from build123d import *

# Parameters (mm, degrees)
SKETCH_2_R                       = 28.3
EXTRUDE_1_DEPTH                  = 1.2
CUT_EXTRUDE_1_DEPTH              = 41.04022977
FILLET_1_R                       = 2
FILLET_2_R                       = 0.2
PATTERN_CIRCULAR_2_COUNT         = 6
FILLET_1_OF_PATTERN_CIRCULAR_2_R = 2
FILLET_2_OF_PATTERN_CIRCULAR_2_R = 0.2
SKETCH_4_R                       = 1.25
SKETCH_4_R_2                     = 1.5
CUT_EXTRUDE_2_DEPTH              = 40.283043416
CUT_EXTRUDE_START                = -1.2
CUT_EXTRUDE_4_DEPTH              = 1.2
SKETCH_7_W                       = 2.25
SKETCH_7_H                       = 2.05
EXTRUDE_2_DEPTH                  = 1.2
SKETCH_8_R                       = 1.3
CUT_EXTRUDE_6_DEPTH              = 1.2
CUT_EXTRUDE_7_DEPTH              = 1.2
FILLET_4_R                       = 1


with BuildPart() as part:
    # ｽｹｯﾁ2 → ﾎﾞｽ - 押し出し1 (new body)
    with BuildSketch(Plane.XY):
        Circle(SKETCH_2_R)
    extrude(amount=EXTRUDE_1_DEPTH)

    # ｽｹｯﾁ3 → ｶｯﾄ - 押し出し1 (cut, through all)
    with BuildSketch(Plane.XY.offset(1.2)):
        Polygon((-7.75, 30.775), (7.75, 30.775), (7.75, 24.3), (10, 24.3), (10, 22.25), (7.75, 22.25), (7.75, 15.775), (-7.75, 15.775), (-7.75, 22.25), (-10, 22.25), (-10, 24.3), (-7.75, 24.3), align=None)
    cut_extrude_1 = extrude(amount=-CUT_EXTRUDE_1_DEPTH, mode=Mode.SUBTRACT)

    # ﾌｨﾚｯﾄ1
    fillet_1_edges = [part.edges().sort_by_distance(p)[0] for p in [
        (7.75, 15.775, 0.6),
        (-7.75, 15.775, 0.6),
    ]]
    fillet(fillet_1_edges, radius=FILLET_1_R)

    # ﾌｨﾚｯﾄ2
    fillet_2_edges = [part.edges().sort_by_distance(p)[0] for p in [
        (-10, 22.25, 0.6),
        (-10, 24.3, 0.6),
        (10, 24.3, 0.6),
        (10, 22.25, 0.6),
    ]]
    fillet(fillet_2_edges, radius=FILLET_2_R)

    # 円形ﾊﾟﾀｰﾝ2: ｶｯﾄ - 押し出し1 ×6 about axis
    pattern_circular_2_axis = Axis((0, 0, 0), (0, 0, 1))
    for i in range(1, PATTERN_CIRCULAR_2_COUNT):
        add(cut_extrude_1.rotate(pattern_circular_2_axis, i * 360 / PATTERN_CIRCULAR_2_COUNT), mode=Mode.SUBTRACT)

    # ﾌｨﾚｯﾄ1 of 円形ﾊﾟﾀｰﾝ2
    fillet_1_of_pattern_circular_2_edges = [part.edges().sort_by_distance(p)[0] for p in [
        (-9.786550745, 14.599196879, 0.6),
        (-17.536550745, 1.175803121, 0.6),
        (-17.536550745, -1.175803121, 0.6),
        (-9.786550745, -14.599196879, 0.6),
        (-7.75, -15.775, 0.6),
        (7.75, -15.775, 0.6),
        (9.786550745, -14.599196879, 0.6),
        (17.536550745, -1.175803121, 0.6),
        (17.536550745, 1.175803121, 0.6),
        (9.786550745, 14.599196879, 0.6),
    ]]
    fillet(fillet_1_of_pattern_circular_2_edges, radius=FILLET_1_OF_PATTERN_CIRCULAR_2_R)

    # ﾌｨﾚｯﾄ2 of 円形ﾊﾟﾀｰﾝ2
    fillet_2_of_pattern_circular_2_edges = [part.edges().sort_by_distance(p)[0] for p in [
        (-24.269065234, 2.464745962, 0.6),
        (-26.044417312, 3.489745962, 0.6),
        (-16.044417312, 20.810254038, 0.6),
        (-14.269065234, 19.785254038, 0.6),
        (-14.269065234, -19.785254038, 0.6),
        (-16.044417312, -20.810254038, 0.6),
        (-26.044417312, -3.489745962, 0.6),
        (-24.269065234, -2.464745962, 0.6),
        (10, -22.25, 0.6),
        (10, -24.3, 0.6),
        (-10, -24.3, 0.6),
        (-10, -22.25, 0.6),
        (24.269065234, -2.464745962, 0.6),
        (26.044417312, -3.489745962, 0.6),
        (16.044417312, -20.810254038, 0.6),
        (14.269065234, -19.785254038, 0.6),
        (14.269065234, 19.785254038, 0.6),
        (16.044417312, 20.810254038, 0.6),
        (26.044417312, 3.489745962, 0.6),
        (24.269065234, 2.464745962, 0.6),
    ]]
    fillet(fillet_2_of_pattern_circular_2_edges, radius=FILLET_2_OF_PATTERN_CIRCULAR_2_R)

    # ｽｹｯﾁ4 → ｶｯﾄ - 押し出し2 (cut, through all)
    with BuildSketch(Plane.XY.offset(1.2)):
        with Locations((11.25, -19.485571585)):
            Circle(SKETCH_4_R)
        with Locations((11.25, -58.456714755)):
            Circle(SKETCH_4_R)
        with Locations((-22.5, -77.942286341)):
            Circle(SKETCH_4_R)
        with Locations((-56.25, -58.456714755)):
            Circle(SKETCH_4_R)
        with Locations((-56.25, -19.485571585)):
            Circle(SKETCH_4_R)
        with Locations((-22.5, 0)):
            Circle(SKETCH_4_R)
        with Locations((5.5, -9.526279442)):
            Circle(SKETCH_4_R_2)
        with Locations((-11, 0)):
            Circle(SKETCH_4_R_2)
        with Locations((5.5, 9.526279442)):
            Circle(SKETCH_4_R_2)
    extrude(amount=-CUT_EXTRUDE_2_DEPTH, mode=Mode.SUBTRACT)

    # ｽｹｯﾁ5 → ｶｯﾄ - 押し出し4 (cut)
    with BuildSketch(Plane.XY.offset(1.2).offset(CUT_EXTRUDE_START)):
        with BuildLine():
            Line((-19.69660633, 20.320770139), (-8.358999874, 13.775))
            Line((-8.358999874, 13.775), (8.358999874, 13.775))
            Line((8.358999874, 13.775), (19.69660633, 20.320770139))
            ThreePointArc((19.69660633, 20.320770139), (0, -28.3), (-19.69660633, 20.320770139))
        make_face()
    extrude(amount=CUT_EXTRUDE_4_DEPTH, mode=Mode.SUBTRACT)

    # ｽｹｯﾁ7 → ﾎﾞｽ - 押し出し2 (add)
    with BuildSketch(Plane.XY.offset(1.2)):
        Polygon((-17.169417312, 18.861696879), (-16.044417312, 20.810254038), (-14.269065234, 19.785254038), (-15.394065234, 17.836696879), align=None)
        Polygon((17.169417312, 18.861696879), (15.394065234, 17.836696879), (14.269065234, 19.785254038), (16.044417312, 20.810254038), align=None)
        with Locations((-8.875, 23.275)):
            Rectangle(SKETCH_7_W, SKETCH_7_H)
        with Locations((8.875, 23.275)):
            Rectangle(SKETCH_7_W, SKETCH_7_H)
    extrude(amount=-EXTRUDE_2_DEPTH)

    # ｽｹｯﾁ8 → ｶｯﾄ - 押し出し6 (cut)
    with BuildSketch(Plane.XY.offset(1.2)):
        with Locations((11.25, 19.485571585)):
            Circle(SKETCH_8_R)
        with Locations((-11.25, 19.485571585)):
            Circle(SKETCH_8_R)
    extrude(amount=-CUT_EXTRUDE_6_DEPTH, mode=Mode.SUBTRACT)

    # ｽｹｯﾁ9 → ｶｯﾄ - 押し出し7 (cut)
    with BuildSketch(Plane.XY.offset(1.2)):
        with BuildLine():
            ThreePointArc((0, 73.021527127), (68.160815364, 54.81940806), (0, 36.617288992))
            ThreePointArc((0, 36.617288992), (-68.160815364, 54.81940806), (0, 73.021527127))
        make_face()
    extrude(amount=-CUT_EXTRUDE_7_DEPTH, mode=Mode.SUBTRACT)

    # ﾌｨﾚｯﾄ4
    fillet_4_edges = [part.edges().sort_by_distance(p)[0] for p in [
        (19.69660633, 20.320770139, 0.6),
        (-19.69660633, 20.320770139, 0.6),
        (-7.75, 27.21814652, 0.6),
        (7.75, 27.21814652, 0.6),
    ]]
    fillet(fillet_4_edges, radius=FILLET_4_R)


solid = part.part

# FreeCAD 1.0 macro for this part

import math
import FreeCAD as App
import Part
import Sketcher
Q = App.Units.Quantity


def edges_at(feature, points):
    """Names of the edges that pass closest to the given points."""
    edges = feature.Shape.Edges
    near = lambda p: min(range(len(edges)), key=lambda i: edges[i].distToShape(Part.Vertex(*p))[0])
    return sorted({f"Edge{near(p) + 1}" for p in points})


def add_polygon(sketch, points):
    """Adds a closed chain of lines whose ends are joined by coincident constraints."""
    first, n = sketch.GeometryCount, len(points)
    for a, b in zip(points, points[1:] + points[:1]):
        sketch.addGeometry(Part.LineSegment(App.Vector(*a, 0), App.Vector(*b, 0)), False)
    for i in range(n):
        sketch.addConstraint(Sketcher.Constraint("Coincident", first + i, 2, first + (i + 1) % n, 1))

doc = App.newDocument("Part")
body = doc.addObject("PartDesign::Body", "Body")

# Sketch on XY plane
sketch1 = body.newObject("Sketcher::SketchObject", "Sketch")
sketch1.AttachmentSupport = (doc.getObject("XY_Plane"), [""])
sketch1.MapMode = "FlatFace"
sketch1.addGeometry(Part.Circle(App.Vector(0, 0, 0), App.Vector(0, 0, 1), 28), False)
sketch1.addConstraint([
    Sketcher.Constraint("Coincident", 0, 3, -1, 1),
    Sketcher.Constraint("Diameter", 0, Q("56.6 mm")),
])
pad1 = body.newObject("PartDesign::Pad", "Pad")
pad1.Profile = sketch1
pad1.Length = 1.2

# Sketch on XY plane
sketch2 = body.newObject("Sketcher::SketchObject", "Sketch001")
sketch2.AttachmentSupport = (doc.getObject("XY_Plane"), [""])
sketch2.MapMode = "FlatFace"
sketch2.AttachmentOffset = App.Placement(App.Vector(0, 0, 1.2), App.Rotation())
add_polygon(sketch2, [(7.8, 30.8), (-7.8, 30.8), (-7.8, 24.3), (-10, 24.3), (-10, 22.2), (-7.8, 22.2), (-7.8, 15.8), (7.8, 15.8), (7.8, 22.2), (10, 22.2), (10, 24.3), (7.8, 24.3)])  # lines 0-11
sketch2.addConstraint([
    Sketcher.Constraint("Horizontal", 0),
    Sketcher.Constraint("Vertical", 1),
    Sketcher.Constraint("Horizontal", 2),
    Sketcher.Constraint("Vertical", 3),
    Sketcher.Constraint("Horizontal", 4),
    Sketcher.Constraint("Vertical", 5),
    Sketcher.Constraint("Horizontal", 6),
    Sketcher.Constraint("Vertical", 7),
    Sketcher.Constraint("Horizontal", 8),
    Sketcher.Constraint("Vertical", 9),
    Sketcher.Constraint("Horizontal", 10),
    Sketcher.Constraint("Vertical", 11),
    Sketcher.Constraint("Symmetric", 4, 2, 7, 2, -2),
    Sketcher.Constraint("Symmetric", 2, 2, 9, 2, -2),
    Sketcher.Constraint("Vertical", 1, 2, 4, 2),
    Sketcher.Constraint("Vertical", 7, 2, 10, 2),
    Sketcher.Constraint("Equal", 1, 5),
    Sketcher.Constraint("DistanceX", 0, 2, 0, 1, Q("15.5 mm")),
    Sketcher.Constraint("DistanceX", 2, 2, -1, 1, Q("10 mm")),
    Sketcher.Constraint("DistanceY", 5, 2, 0, 2, Q("15 mm")),
    Sketcher.Constraint("DistanceY", 3, 2, 3, 1, Q("2.05 mm")),
    Sketcher.Constraint("DistanceY", -1, 1, 1, 2, Q("24.3 mm")),
])
pocket1 = body.newObject("PartDesign::Pocket", "Pocket")
pocket1.Profile = sketch2
pocket1.Type = "ThroughAll"
doc.recompute()

fillet = body.newObject("PartDesign::Fillet", "Fillet")
fillet.Base = (pocket1, edges_at(pocket1, [(7.75, 15.775, 0.6), (-7.75, 15.775, 0.6)]))
fillet.Radius = 2
doc.recompute()

fillet2 = body.newObject("PartDesign::Fillet", "Fillet001")
fillet2.Base = (fillet, edges_at(fillet, [
    (-10, 22.25, 0.6),
    (-10, 24.3, 0.6),
    (10, 24.3, 0.6),
    (10, 22.25, 0.6),
]))
fillet2.Radius = 0.2
doc.recompute()

polarpattern = body.newObject("PartDesign::PolarPattern", "PolarPattern")
polarpattern.Originals = [pocket1]
polarpattern.Axis = (doc.getObject("Z_Axis"), [""])
polarpattern.Angle = 360
polarpattern.Occurrences = 6
body.Tip = polarpattern
doc.recompute()

fillet3 = body.newObject("PartDesign::Fillet", "Fillet002")
fillet3.Base = (polarpattern, edges_at(polarpattern, [
    (-9.787, 14.599, 0.6),
    (-17.537, 1.176, 0.6),
    (-17.537, -1.176, 0.6),
    (-9.787, -14.599, 0.6),
    (-7.75, -15.775, 0.6),
    (7.75, -15.775, 0.6),
    (9.787, -14.599, 0.6),
    (17.537, -1.176, 0.6),
    (17.537, 1.176, 0.6),
    (9.787, 14.599, 0.6),
]))
fillet3.Radius = 2
doc.recompute()

fillet4 = body.newObject("PartDesign::Fillet", "Fillet003")
fillet4.Base = (fillet3, edges_at(fillet3, [
    (-24.269, 2.465, 0.6),
    (-26.044, 3.49, 0.6),
    (-16.044, 20.81, 0.6),
    (-14.269, 19.785, 0.6),
    (-14.269, -19.785, 0.6),
    (-16.044, -20.81, 0.6),
    (-26.044, -3.49, 0.6),
    (-24.269, -2.465, 0.6),
    (10, -22.25, 0.6),
    (10, -24.3, 0.6),
    (-10, -24.3, 0.6),
    (-10, -22.25, 0.6),
    (24.269, -2.465, 0.6),
    (26.044, -3.49, 0.6),
    (16.044, -20.81, 0.6),
    (14.269, -19.785, 0.6),
    (14.269, 19.785, 0.6),
    (16.044, 20.81, 0.6),
    (26.044, 3.49, 0.6),
    (24.269, 2.465, 0.6),
]))
fillet4.Radius = 0.2

# Sketch on XY plane
sketch3 = body.newObject("Sketcher::SketchObject", "Sketch002")
sketch3.AttachmentSupport = (doc.getObject("XY_Plane"), [""])
sketch3.MapMode = "FlatFace"
sketch3.AttachmentOffset = App.Placement(App.Vector(0, 0, 1.2), App.Rotation())
sketch3.addGeometry([
    Part.Circle(App.Vector(11.2, -19.5, 0), App.Vector(0, 0, 1), 1.2),  # 0
    Part.Circle(App.Vector(11.2, -58.5, 0), App.Vector(0, 0, 1), 1.2),  # 1
    Part.Circle(App.Vector(-22.5, -77.9, 0), App.Vector(0, 0, 1), 1.2),  # 2
    Part.Circle(App.Vector(-56.2, -58.5, 0), App.Vector(0, 0, 1), 1.2),  # 3
    Part.Circle(App.Vector(-56.2, -19.5, 0), App.Vector(0, 0, 1), 1.2),  # 4
    Part.Circle(App.Vector(-22.5, 0, 0), App.Vector(0, 0, 1), 1.2),  # 5
    Part.Circle(App.Vector(5.5, -9.5, 0), App.Vector(0, 0, 1), 1.5),  # 6
    Part.Circle(App.Vector(-11, 0, 0), App.Vector(0, 0, 1), 1.5),  # 7
    Part.Circle(App.Vector(5.5, 9.5, 0), App.Vector(0, 0, 1), 1.5),  # 8
], False)
sketch3.addConstraint([
    Sketcher.Constraint("Equal", 0, 1),
    Sketcher.Constraint("Equal", 1, 2),
    Sketcher.Constraint("Equal", 2, 3),
    Sketcher.Constraint("Equal", 3, 4),
    Sketcher.Constraint("Equal", 4, 5),
    Sketcher.Constraint("Equal", 6, 7),
    Sketcher.Constraint("Equal", 7, 8),
    Sketcher.Constraint("Symmetric", 6, 3, 8, 3, -1),
    Sketcher.Constraint("PointOnObject", 5, 3, -1),
    Sketcher.Constraint("PointOnObject", 7, 3, -1),
    Sketcher.Constraint("Horizontal", 1, 3, 3, 3),
    Sketcher.Constraint("Horizontal", 0, 3, 4, 3),
    Sketcher.Constraint("Vertical", 0, 3, 1, 3),
    Sketcher.Constraint("Vertical", 3, 3, 4, 3),
    Sketcher.Constraint("Vertical", 2, 3, 5, 3),
    Sketcher.Constraint("Diameter", 6, Q("3 mm")),
    Sketcher.Constraint("Diameter", 0, Q("2.5 mm")),
    Sketcher.Constraint("DistanceX", 7, 3, -1, 1, Q("11 mm")),
    Sketcher.Constraint("DistanceX", 5, 3, 6, 3, Q("28 mm")),
    Sketcher.Constraint("DistanceX", 2, 3, -1, 1, Q("22.5 mm")),
    Sketcher.Constraint("DistanceX", 3, 3, 1, 3, Q("67.5 mm")),
    Sketcher.Constraint("DistanceX", -1, 1, 0, 3, Q("11.25 mm")),
    Sketcher.Constraint("DistanceY", 0, 3, -1, 1, Q("19.485572 mm")),
    Sketcher.Constraint("DistanceY", 6, 3, -1, 1, Q("9.526279 mm")),
    Sketcher.Constraint("DistanceY", 2, 3, 1, 3, Q("19.485572 mm")),
    Sketcher.Constraint("DistanceY", 1, 3, -1, 1, Q("58.456715 mm")),
])
pocket2 = body.newObject("PartDesign::Pocket", "Pocket001")
pocket2.Profile = sketch3
pocket2.Type = "ThroughAll"

# Sketch on XY plane
sketch4 = body.newObject("Sketcher::SketchObject", "Sketch003")
sketch4.AttachmentSupport = (doc.getObject("XY_Plane"), [""])
sketch4.MapMode = "FlatFace"
sketch4.addGeometry([
    Part.LineSegment(App.Vector(-8, 14, 0), App.Vector(-20, 20, 0)),
    Part.ArcOfCircle(Part.Circle(App.Vector(0, 0, 0), App.Vector(0, 0, 1), 28), math.radians(134), math.radians(406)),
    Part.LineSegment(App.Vector(20, 20, 0), App.Vector(8, 14, 0)),
    Part.LineSegment(App.Vector(8, 14, 0), App.Vector(-8, 14, 0)),
], False)
sketch4.addConstraint([
    Sketcher.Constraint("Coincident", 0, 2, 1, 1),
    Sketcher.Constraint("Coincident", 1, 2, 2, 1),
    Sketcher.Constraint("Coincident", 2, 2, 3, 1),
    Sketcher.Constraint("Coincident", 3, 2, 0, 1),
    Sketcher.Constraint("Horizontal", 3),
    Sketcher.Constraint("Coincident", 1, 3, -1, 1),
    Sketcher.Constraint("Horizontal", 0, 2, 1, 2),
    Sketcher.Constraint("Equal", 0, 2),
    Sketcher.Constraint("Radius", 1, Q("28.3 mm")),
    Sketcher.Constraint("Angle", 0, Q("150 deg")),
    Sketcher.Constraint("DistanceX", 3, 2, 3, 1, Q("16.718 mm")),
    Sketcher.Constraint("DistanceY", -1, 1, 2, 2, Q("13.775 mm")),
])
pocket3 = body.newObject("PartDesign::Pocket", "Pocket002")
pocket3.Profile = sketch4
pocket3.Length = 1.2
pocket3.Reversed = True

# Sketch on XY plane
sketch5 = body.newObject("Sketcher::SketchObject", "Sketch004")
sketch5.AttachmentSupport = (doc.getObject("XY_Plane"), [""])
sketch5.MapMode = "FlatFace"
sketch5.AttachmentOffset = App.Placement(App.Vector(0, 0, 1.2), App.Rotation())
add_polygon(sketch5, [(-16, 20.8), (-17.2, 18.9), (-15.4, 17.8), (-14.3, 19.8)])  # lines 0-3
add_polygon(sketch5, [(15.4, 17.8), (17.2, 18.9), (16, 20.8), (14.3, 19.8)])  # lines 4-7
add_polygon(sketch5, [(-10, 24.3), (-10, 22.2), (-7.8, 22.2), (-7.8, 24.3)])  # lines 8-11
add_polygon(sketch5, [(7.8, 24.3), (7.8, 22.2), (10, 22.2), (10, 24.3)])  # lines 12-15
sketch5.addConstraint([
    Sketcher.Constraint("Vertical", 8),
    Sketcher.Constraint("Horizontal", 9),
    Sketcher.Constraint("Vertical", 10),
    Sketcher.Constraint("Horizontal", 11),
    Sketcher.Constraint("Vertical", 12),
    Sketcher.Constraint("Horizontal", 13),
    Sketcher.Constraint("Vertical", 14),
    Sketcher.Constraint("Horizontal", 15),
    Sketcher.Constraint("Symmetric", 0, 2, 4, 2, -2),
    Sketcher.Constraint("Symmetric", 3, 2, 5, 2, -2),
    Sketcher.Constraint("Symmetric", 2, 2, 6, 2, -2),
    Sketcher.Constraint("Symmetric", 1, 2, 7, 2, -2),
    Sketcher.Constraint("Symmetric", 9, 2, 12, 2, -2),
    Sketcher.Constraint("Symmetric", 11, 2, 14, 2, -2),
    Sketcher.Constraint("Perpendicular", 0, 1),
    Sketcher.Constraint("Perpendicular", 1, 2),
    Sketcher.Constraint("Perpendicular", 2, 3),
    Sketcher.Constraint("Angle", 0, Q("-120 deg")),
    Sketcher.Constraint("DistanceX", 8, 2, -1, 1, Q("10 mm")),
    Sketcher.Constraint("DistanceX", 9, 1, 9, 2, Q("2.25 mm")),
    Sketcher.Constraint("DistanceY", 8, 2, 8, 1, Q("2.05 mm")),
    Sketcher.Constraint("DistanceY", -1, 1, 10, 2, Q("24.3 mm")),
    Sketcher.Constraint("Distance", 0, Q("2.25 mm")),
    Sketcher.Constraint("Distance", 1, Q("2.05 mm")),
    Sketcher.Constraint("DistanceX", 2, 2, 6, 2, Q("28.53813 mm")),
    Sketcher.Constraint("DistanceY", -1, 1, 0, 2, Q("18.861697 mm")),
])
pad2 = body.newObject("PartDesign::Pad", "Pad001")
pad2.Profile = sketch5
pad2.Length = 1.2
pad2.Reversed = True

# Sketch on XY plane
sketch6 = body.newObject("Sketcher::SketchObject", "Sketch005")
sketch6.AttachmentSupport = (doc.getObject("XY_Plane"), [""])
sketch6.MapMode = "FlatFace"
sketch6.AttachmentOffset = App.Placement(App.Vector(0, 0, 1.2), App.Rotation())
sketch6.addGeometry([
    Part.Circle(App.Vector(11.2, 19.5, 0), App.Vector(0, 0, 1), 1.3),
    Part.Circle(App.Vector(-11.2, 19.5, 0), App.Vector(0, 0, 1), 1.3),
], False)
sketch6.addConstraint([
    Sketcher.Constraint("Equal", 0, 1),
    Sketcher.Constraint("Symmetric", 0, 3, 1, 3, -2),
    Sketcher.Constraint("Diameter", 0, Q("2.6 mm")),
    Sketcher.Constraint("DistanceX", 1, 3, 0, 3, Q("22.5 mm")),
    Sketcher.Constraint("DistanceY", -1, 1, 0, 3, Q("19.485572 mm")),
])
pocket4 = body.newObject("PartDesign::Pocket", "Pocket003")
pocket4.Profile = sketch6
pocket4.Length = 1.2

# Sketch on XY plane
sketch7 = body.newObject("Sketcher::SketchObject", "Sketch006")
sketch7.AttachmentSupport = (doc.getObject("XY_Plane"), [""])
sketch7.MapMode = "FlatFace"
sketch7.AttachmentOffset = App.Placement(App.Vector(0, 0, 1.2), App.Rotation())
sketch7.addGeometry([
    Part.ArcOfCircle(Part.Circle(App.Vector(32, 55, 0), App.Vector(0, 0, 1), 37), math.radians(-150), math.radians(150)),
    Part.ArcOfCircle(Part.Circle(App.Vector(-32, 55, 0), App.Vector(0, 0, 1), 37), math.radians(30), math.radians(330)),
], False)
sketch7.addConstraint([
    Sketcher.Constraint("Coincident", 0, 1, 1, 2),
    Sketcher.Constraint("Coincident", 1, 1, 0, 2),
    Sketcher.Constraint("Equal", 0, 1),
    Sketcher.Constraint("Symmetric", 0, 3, 1, 3, -2),
    Sketcher.Constraint("DistanceX", 1, 3, 0, 3, Q("63.3 mm")),
    Sketcher.Constraint("Radius", 0, Q("36.510815 mm")),
    Sketcher.Constraint("DistanceY", -1, 1, 0, 3, Q("54.819408 mm")),
])
pocket5 = body.newObject("PartDesign::Pocket", "Pocket004")
pocket5.Profile = sketch7
pocket5.Length = 1.2
doc.recompute()

fillet5 = body.newObject("PartDesign::Fillet", "Fillet004")
fillet5.Base = (pocket5, edges_at(pocket5, [
    (19.697, 20.321, 0.6),
    (-19.697, 20.321, 0.6),
    (-7.75, 27.218, 0.6),
    (7.75, 27.218, 0.6),
]))
fillet5.Radius = 1

doc.recompute()
